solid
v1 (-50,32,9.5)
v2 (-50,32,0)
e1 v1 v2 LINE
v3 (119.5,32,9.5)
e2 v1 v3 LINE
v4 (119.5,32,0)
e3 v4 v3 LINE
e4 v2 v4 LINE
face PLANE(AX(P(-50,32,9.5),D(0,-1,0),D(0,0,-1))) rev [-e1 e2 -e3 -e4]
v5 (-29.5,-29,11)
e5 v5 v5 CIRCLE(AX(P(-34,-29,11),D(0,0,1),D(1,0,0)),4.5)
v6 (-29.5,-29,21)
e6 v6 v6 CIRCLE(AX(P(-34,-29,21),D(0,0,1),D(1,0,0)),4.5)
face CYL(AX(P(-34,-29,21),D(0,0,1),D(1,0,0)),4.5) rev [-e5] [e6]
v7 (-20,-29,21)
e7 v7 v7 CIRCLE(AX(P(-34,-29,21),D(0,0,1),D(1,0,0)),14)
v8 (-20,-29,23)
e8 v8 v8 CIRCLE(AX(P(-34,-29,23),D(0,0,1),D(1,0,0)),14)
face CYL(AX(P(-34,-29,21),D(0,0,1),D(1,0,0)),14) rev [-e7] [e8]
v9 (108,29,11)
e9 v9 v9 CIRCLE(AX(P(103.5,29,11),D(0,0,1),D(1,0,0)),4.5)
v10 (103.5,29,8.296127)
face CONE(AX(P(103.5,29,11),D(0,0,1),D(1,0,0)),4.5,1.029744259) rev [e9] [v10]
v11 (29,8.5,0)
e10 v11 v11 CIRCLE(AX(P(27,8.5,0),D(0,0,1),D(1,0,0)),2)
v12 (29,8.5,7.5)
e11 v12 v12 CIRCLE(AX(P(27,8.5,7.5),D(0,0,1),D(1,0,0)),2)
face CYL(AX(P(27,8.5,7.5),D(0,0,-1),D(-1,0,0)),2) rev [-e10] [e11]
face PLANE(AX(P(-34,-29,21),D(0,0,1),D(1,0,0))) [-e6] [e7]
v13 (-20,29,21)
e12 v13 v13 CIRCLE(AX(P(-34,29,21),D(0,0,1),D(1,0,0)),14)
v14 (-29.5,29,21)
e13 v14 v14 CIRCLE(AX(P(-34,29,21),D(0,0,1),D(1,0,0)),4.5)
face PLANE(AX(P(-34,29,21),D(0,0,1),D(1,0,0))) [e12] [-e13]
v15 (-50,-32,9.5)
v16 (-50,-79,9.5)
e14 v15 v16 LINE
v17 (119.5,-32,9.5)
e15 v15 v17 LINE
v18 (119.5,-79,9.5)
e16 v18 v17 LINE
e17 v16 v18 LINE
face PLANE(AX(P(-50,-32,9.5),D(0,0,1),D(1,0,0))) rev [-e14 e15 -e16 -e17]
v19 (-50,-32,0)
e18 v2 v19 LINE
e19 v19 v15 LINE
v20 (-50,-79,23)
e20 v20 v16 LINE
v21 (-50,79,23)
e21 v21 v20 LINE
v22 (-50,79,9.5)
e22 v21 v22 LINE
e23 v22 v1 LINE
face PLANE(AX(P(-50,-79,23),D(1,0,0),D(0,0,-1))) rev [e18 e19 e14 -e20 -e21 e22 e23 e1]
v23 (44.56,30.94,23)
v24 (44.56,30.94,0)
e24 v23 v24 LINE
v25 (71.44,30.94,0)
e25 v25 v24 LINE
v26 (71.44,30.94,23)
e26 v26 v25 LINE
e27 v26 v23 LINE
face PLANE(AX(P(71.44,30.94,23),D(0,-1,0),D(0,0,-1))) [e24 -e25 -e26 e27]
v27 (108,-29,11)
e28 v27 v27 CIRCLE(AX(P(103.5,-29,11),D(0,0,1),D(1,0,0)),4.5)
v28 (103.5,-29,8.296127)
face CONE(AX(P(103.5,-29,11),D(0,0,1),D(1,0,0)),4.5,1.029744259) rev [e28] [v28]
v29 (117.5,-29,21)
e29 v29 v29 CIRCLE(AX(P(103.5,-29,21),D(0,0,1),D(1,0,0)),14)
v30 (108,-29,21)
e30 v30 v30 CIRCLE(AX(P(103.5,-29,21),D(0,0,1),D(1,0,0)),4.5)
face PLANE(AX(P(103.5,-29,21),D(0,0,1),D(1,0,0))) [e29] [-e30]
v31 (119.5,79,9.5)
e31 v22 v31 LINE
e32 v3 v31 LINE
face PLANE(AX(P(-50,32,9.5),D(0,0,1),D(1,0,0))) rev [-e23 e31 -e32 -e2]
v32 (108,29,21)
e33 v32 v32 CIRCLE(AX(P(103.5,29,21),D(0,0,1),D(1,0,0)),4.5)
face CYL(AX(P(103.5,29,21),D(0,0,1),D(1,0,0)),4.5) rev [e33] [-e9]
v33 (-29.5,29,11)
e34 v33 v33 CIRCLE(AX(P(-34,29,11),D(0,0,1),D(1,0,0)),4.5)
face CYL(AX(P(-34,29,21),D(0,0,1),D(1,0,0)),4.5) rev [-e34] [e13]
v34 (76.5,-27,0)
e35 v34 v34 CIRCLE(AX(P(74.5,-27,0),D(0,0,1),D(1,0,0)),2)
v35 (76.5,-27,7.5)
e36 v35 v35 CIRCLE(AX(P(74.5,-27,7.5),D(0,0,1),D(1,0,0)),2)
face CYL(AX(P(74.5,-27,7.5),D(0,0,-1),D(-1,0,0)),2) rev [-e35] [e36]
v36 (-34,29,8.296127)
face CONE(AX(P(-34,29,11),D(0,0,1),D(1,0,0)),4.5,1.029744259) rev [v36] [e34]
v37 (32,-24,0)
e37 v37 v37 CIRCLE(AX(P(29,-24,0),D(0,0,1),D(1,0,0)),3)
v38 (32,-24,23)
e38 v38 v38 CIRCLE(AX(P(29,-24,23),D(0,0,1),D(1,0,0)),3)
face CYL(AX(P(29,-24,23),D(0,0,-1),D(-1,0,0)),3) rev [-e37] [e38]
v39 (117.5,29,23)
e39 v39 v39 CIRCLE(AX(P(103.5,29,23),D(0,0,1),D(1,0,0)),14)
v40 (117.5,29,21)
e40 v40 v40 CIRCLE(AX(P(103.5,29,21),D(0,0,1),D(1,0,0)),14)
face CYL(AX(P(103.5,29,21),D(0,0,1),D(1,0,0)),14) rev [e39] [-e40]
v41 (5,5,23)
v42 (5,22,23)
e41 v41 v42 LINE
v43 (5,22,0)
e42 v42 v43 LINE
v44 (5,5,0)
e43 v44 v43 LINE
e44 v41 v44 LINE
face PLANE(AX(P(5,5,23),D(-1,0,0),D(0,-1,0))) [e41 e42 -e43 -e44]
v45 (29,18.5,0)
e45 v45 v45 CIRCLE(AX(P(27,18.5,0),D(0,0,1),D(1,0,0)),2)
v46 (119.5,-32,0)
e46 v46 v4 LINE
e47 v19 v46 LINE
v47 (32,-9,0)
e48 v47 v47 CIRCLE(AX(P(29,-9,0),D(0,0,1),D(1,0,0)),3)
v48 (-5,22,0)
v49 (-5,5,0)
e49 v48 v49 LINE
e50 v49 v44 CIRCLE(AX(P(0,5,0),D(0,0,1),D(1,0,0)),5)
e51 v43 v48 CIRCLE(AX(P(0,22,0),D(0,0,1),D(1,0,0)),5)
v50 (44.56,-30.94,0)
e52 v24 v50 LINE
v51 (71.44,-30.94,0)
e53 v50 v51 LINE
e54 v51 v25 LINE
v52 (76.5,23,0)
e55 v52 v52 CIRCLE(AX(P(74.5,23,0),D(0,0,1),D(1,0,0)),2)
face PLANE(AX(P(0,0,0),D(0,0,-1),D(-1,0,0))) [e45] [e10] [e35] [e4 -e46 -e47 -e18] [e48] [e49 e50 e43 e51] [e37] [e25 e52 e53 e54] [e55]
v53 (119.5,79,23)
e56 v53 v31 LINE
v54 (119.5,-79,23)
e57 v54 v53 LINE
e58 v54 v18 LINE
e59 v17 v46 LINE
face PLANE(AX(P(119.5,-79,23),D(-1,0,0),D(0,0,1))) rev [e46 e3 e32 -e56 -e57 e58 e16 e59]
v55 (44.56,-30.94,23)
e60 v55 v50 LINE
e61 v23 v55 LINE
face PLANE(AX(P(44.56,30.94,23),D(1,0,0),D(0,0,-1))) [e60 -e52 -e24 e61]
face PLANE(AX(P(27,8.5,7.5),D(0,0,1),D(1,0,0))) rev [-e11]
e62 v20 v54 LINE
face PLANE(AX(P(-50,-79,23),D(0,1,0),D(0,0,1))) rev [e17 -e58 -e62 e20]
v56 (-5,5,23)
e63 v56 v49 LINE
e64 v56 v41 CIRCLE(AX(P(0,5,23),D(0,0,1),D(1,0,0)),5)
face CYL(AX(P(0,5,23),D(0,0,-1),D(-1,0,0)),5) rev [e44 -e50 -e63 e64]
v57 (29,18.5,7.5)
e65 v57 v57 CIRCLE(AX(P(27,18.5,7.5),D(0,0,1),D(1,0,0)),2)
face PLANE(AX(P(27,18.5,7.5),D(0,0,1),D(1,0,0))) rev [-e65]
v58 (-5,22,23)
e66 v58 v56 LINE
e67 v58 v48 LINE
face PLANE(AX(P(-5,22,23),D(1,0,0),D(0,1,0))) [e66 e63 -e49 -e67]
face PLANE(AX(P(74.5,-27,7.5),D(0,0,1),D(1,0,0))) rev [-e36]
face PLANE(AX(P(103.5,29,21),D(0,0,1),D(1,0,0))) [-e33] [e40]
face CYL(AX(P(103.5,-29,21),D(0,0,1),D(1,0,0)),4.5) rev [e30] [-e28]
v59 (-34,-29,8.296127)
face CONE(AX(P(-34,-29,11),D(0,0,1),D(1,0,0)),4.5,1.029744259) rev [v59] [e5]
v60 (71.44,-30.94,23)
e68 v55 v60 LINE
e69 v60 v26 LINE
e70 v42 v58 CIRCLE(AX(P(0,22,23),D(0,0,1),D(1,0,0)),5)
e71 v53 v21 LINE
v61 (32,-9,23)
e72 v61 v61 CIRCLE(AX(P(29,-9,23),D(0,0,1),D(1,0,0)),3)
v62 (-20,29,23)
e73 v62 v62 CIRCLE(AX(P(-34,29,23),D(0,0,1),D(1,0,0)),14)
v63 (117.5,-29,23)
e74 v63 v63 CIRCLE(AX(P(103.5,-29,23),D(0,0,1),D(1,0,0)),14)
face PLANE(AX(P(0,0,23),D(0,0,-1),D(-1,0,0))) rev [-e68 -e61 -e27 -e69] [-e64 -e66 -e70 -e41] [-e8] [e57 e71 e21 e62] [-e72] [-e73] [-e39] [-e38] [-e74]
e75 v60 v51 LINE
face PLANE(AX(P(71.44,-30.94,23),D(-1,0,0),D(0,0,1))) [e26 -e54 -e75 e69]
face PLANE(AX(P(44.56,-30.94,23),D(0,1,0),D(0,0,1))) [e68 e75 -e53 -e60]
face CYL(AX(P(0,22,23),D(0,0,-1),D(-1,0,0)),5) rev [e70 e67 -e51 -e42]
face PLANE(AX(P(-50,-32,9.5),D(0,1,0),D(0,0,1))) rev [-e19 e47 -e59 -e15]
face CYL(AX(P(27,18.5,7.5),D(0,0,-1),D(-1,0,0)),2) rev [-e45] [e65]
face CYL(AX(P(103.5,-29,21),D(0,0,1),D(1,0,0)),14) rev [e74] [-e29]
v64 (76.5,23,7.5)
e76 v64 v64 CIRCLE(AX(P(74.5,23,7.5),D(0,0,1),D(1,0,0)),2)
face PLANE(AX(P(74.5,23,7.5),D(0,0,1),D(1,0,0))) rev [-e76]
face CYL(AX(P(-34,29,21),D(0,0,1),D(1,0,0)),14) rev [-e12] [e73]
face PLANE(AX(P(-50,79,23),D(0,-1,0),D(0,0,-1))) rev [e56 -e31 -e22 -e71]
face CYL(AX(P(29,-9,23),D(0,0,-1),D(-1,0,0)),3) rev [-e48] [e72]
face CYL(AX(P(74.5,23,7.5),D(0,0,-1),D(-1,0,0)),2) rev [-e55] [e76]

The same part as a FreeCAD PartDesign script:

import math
import FreeCAD as App
import Part
import Sketcher
from FreeCAD import Vector

doc = App.newDocument("Part")
body = doc.addObject("PartDesign::Body", "Body")

# Sketch on XY plane
sketch1 = body.newObject("Sketcher::SketchObject", "Sketch")
sketch1.AttachmentSupport = (doc.getObject("XY_Plane"), [""])
sketch1.MapMode = "FlatFace"
sketch1.addGeometry(Part.LineSegment(Vector(-50, 79, 0), Vector(-50, -79, 0)), False)
sketch1.addGeometry(Part.LineSegment(Vector(-50, -79, 0), Vector(119.5, -79, 0)), False)
sketch1.addGeometry(Part.LineSegment(Vector(119.5, -79, 0), Vector(119.5, 79, 0)), False)
sketch1.addGeometry(Part.LineSegment(Vector(119.5, 79, 0), Vector(-50, 79, 0)), False)
sketch1.addGeometry(Part.Circle(Vector(29, -24, 0), Vector(0, 0, 1), 3), False)
sketch1.addGeometry(Part.Circle(Vector(29, -9, 0), Vector(0, 0, 1), 3), False)
sketch1.addGeometry(Part.LineSegment(Vector(71.4, -30.9, 0), Vector(44.6, -30.9, 0)), False)
sketch1.addGeometry(Part.LineSegment(Vector(44.6, -30.9, 0), Vector(44.6, 30.9, 0)), False)
sketch1.addGeometry(Part.LineSegment(Vector(44.6, 30.9, 0), Vector(71.4, 30.9, 0)), False)
sketch1.addGeometry(Part.LineSegment(Vector(71.4, 30.9, 0), Vector(71.4, -30.9, 0)), False)
sketch1.addGeometry(Part.LineSegment(Vector(-5, 5, 0), Vector(-5, 22, 0)), False)
sketch1.addGeometry(Part.ArcOfCircle(Part.Circle(Vector(0, 22, 0), Vector(0, 0, 1), 5), math.radians(0), math.radians(180)), False)
sketch1.addGeometry(Part.LineSegment(Vector(5, 22, 0), Vector(5, 5, 0)), False)
sketch1.addGeometry(Part.ArcOfCircle(Part.Circle(Vector(0, 5, 0), Vector(0, 0, 1), 5), math.radians(180), math.radians(360)), False)
sketch1.addConstraint(Sketcher.Constraint("Coincident", 0, 2, 1, 1))
sketch1.addConstraint(Sketcher.Constraint("Coincident", 1, 2, 2, 1))
sketch1.addConstraint(Sketcher.Constraint("Coincident", 2, 2, 3, 1))
sketch1.addConstraint(Sketcher.Constraint("Coincident", 3, 2, 0, 1))
sketch1.addConstraint(Sketcher.Constraint("Coincident", 6, 2, 7, 1))
sketch1.addConstraint(Sketcher.Constraint("Coincident", 7, 2, 8, 1))
sketch1.addConstraint(Sketcher.Constraint("Coincident", 8, 2, 9, 1))
sketch1.addConstraint(Sketcher.Constraint("Coincident", 9, 2, 6, 1))
sketch1.addConstraint(Sketcher.Constraint("Tangent", 10, 2, 11, 2))
sketch1.addConstraint(Sketcher.Constraint("Tangent", 11, 1, 12, 1))
sketch1.addConstraint(Sketcher.Constraint("Tangent", 12, 2, 13, 2))
sketch1.addConstraint(Sketcher.Constraint("Tangent", 13, 1, 10, 1))
sketch1.addConstraint(Sketcher.Constraint("Vertical", 0))
sketch1.addConstraint(Sketcher.Constraint("Horizontal", 1))
sketch1.addConstraint(Sketcher.Constraint("Vertical", 2))
sketch1.addConstraint(Sketcher.Constraint("Horizontal", 3))
sketch1.addConstraint(Sketcher.Constraint("Horizontal", 6))
sketch1.addConstraint(Sketcher.Constraint("Vertical", 7))
sketch1.addConstraint(Sketcher.Constraint("Horizontal", 8))
sketch1.addConstraint(Sketcher.Constraint("Vertical", 9))
sketch1.addConstraint(Sketcher.Constraint("Vertical", 10))
sketch1.addConstraint(Sketcher.Constraint("Vertical", 12))
sketch1.addConstraint(Sketcher.Constraint("Equal", 4, 5))
sketch1.addConstraint(Sketcher.Constraint("PointOnObject", 11, 3, -2))
sketch1.addConstraint(Sketcher.Constraint("Vertical", 4, 3, 5, 3))
sketch1.addConstraint(Sketcher.Constraint("Diameter", 4, 6.0))
sketch1.addConstraint(Sketcher.Constraint("Radius", 11, 5.0))
sketch1.addConstraint(Sketcher.Constraint("DistanceY", 0, 2, 0, 1, 158.0))
sketch1.addConstraint(Sketcher.Constraint("DistanceY", 10, 1, 10, 2, 17.0))
sketch1.addConstraint(Sketcher.Constraint("DistanceX", 1, 1, 1, 2, 169.5))
sketch1.addConstraint(Sketcher.Constraint("DistanceX", -1, 1, 4, 3, 29.0))
sketch1.addConstraint(Sketcher.Constraint("DistanceY", 4, 3, -1, 1, 24.0))
sketch1.addConstraint(Sketcher.Constraint("DistanceY", 5, 3, -1, 1, 9.0))
sketch1.addConstraint(Sketcher.Constraint("DistanceY", -1, 1, 11, 3, 22.0))
sketch1.addConstraint(Sketcher.Constraint("DistanceX", 0, 2, -1, 1, 50.0))
sketch1.addConstraint(Sketcher.Constraint("DistanceY", 0, 2, -1, 1, 79.0))
sketch1.addConstraint(Sketcher.Constraint("DistanceX", 6, 2, 6, 1, 26.88))
sketch1.addConstraint(Sketcher.Constraint("DistanceY", 7, 1, 7, 2, 61.88))
sketch1.addConstraint(Sketcher.Constraint("DistanceX", -1, 1, 6, 2, 44.56))
sketch1.addConstraint(Sketcher.Constraint("DistanceY", 6, 2, -1, 1, 30.94))
pad1 = body.newObject("PartDesign::Pad", "Pad")
pad1.Profile = sketch1
pad1.Length = 23

# Sketch on YZ plane
sketch2 = body.newObject("Sketcher::SketchObject", "Sketch001")
sketch2.AttachmentSupport = (doc.getObject("YZ_Plane"), [""])
sketch2.MapMode = "FlatFace"
sketch2.AttachmentOffset = App.Placement(Vector(0, 0, 119.5), App.Rotation())
sketch2.addGeometry(Part.LineSegment(Vector(79, 10, 0), Vector(32, 10, 0)), False)
sketch2.addGeometry(Part.LineSegment(Vector(32, 10, 0), Vector(32, 0, 0)), False)
sketch2.addGeometry(Part.LineSegment(Vector(32, 0, 0), Vector(79, 0, 0)), False)
sketch2.addGeometry(Part.LineSegment(Vector(79, 0, 0), Vector(79, 10, 0)), False)
sketch2.addGeometry(Part.LineSegment(Vector(-32, 10, 0), Vector(-79, 10, 0)), False)
sketch2.addGeometry(Part.LineSegment(Vector(-79, 10, 0), Vector(-79, 0, 0)), False)
sketch2.addGeometry(Part.LineSegment(Vector(-79, 0, 0), Vector(-32, 0, 0)), False)
sketch2.addGeometry(Part.LineSegment(Vector(-32, 0, 0), Vector(-32, 10, 0)), False)
sketch2.addConstraint(Sketcher.Constraint("Coincident", 0, 2, 1, 1))
sketch2.addConstraint(Sketcher.Constraint("Coincident", 1, 2, 2, 1))
sketch2.addConstraint(Sketcher.Constraint("Coincident", 2, 2, 3, 1))
sketch2.addConstraint(Sketcher.Constraint("Coincident", 3, 2, 0, 1))
sketch2.addConstraint(Sketcher.Constraint("Coincident", 4, 2, 5, 1))
sketch2.addConstraint(Sketcher.Constraint("Coincident", 5, 2, 6, 1))
sketch2.addConstraint(Sketcher.Constraint("Coincident", 6, 2, 7, 1))
sketch2.addConstraint(Sketcher.Constraint("Coincident", 7, 2, 4, 1))
sketch2.addConstraint(Sketcher.Constraint("Horizontal", 0))
sketch2.addConstraint(Sketcher.Constraint("Vertical", 1))
sketch2.addConstraint(Sketcher.Constraint("Horizontal", 2))
sketch2.addConstraint(Sketcher.Constraint("Vertical", 3))
sketch2.addConstraint(Sketcher.Constraint("Horizontal", 4))
sketch2.addConstraint(Sketcher.Constraint("Vertical", 5))
sketch2.addConstraint(Sketcher.Constraint("Horizontal", 6))
sketch2.addConstraint(Sketcher.Constraint("Vertical", 7))
sketch2.addConstraint(Sketcher.Constraint("Symmetric", 2, 2, 5, 2, -1, 1))
sketch2.addConstraint(Sketcher.Constraint("Symmetric", 1, 2, 6, 2, -2))
sketch2.addConstraint(Sketcher.Constraint("Horizontal", 3, 2, 4, 2))
sketch2.addConstraint(Sketcher.Constraint("DistanceX", 0, 2, 0, 1, 47.0))
sketch2.addConstraint(Sketcher.Constraint("DistanceY", 1, 2, 1, 1, 9.5))
sketch2.addConstraint(Sketcher.Constraint("DistanceX", -1, 1, 0, 2, 32.0))
pocket1 = body.newObject("PartDesign::Pocket", "Pocket")
pocket1.Profile = sketch2
pocket1.Type = "ThroughAll"
pocket1.Midplane = True

# Sketch on XY plane
sketch3 = body.newObject("Sketcher::SketchObject", "Sketch002")
sketch3.AttachmentSupport = (doc.getObject("XY_Plane"), [""])
sketch3.MapMode = "FlatFace"
sketch3.addGeometry(Part.Circle(Vector(74.5, -27, 0), Vector(0, 0, 1), 2), False)
sketch3.addGeometry(Part.Circle(Vector(74.5, 23, 0), Vector(0, 0, 1), 2), False)
sketch3.addGeometry(Part.Circle(Vector(27, 18.5, 0), Vector(0, 0, 1), 2), False)
sketch3.addGeometry(Part.Circle(Vector(27, 8.5, 0), Vector(0, 0, 1), 2), False)
sketch3.addConstraint(Sketcher.Constraint("Equal", 0, 1))
sketch3.addConstraint(Sketcher.Constraint("Equal", 1, 2))
sketch3.addConstraint(Sketcher.Constraint("Equal", 2, 3))
sketch3.addConstraint(Sketcher.Constraint("Vertical", 0, 3, 1, 3))
sketch3.addConstraint(Sketcher.Constraint("Vertical", 2, 3, 3, 3))
sketch3.addConstraint(Sketcher.Constraint("Diameter", 0, 4.0))
sketch3.addConstraint(Sketcher.Constraint("DistanceY", 0, 3, -1, 1, 27.0))
sketch3.addConstraint(Sketcher.Constraint("DistanceY", -1, 1, 1, 3, 23.0))
sketch3.addConstraint(Sketcher.Constraint("DistanceX", -1, 1, 2, 3, 27.0))
sketch3.addConstraint(Sketcher.Constraint("DistanceY", 3, 3, 2, 3, 10.0))
sketch3.addConstraint(Sketcher.Constraint("DistanceX", -1, 1, 0, 3, 74.5))
sketch3.addConstraint(Sketcher.Constraint("DistanceY", -1, 1, 2, 3, 18.5))
pocket2 = body.newObject("PartDesign::Pocket", "Pocket001")
pocket2.Profile = sketch3
pocket2.Length = 7.5
pocket2.Reversed = True

# Sketch on XY plane
sketch4 = body.newObject("Sketcher::SketchObject", "Sketch003")
sketch4.AttachmentSupport = (doc.getObject("XY_Plane"), [""])
sketch4.MapMode = "FlatFace"
sketch4.AttachmentOffset = App.Placement(Vector(0, 0, 23), App.Rotation())
sketch4.addGeometry(Part.Circle(Vector(104, 29, 0), Vector(0, 0, 1), 14), False)
sketch4.addGeometry(Part.Circle(Vector(104, -29, 0), Vector(0, 0, 1), 14), False)
sketch4.addGeometry(Part.Circle(Vector(-34, 29, 0), Vector(0, 0, 1), 14), False)
sketch4.addGeometry(Part.Circle(Vector(-34, -29, 0), Vector(0, 0, 1), 14), False)
sketch4.addConstraint(Sketcher.Constraint("Equal", 0, 1))
sketch4.addConstraint(Sketcher.Constraint("Equal", 1, 2))
sketch4.addConstraint(Sketcher.Constraint("Equal", 2, 3))
sketch4.addConstraint(Sketcher.Constraint("Symmetric", 0, 3, 1, 3, -1))
sketch4.addConstraint(Sketcher.Constraint("Symmetric", 2, 3, 3, 3, -1))
sketch4.addConstraint(Sketcher.Constraint("Horizontal", 0, 3, 2, 3))
sketch4.addConstraint(Sketcher.Constraint("Diameter", 0, 28.0))
sketch4.addConstraint(Sketcher.Constraint("DistanceY", -1, 1, 0, 3, 29.0))
sketch4.addConstraint(Sketcher.Constraint("DistanceX", 2, 3, -1, 1, 34.0))
sketch4.addConstraint(Sketcher.Constraint("DistanceX", -1, 1, 0, 3, 103.5))
pocket3 = body.newObject("PartDesign::Pocket", "Pocket002")
pocket3.Profile = sketch4
pocket3.Length = 2

# Sketch on XY plane
sketch5 = body.newObject("Sketcher::SketchObject", "Sketch004")
sketch5.AttachmentSupport = (doc.getObject("XY_Plane"), [""])
sketch5.MapMode = "FlatFace"
sketch5.AttachmentOffset = App.Placement(Vector(0, 0, 21), App.Rotation())
sketch5.addGeometry(Part.Circle(Vector(-34, 29, 0), Vector(0, 0, 1), 4.5), False)
sketch5.addGeometry(Part.Circle(Vector(-34, -29, 0), Vector(0, 0, 1), 4.5), False)
sketch5.addGeometry(Part.Circle(Vector(103.5, 29, 0), Vector(0, 0, 1), 4.5), False)
sketch5.addGeometry(Part.Circle(Vector(103.5, -29, 0), Vector(0, 0, 1), 4.5), False)
sketch5.addConstraint(Sketcher.Constraint("Equal", 0, 1))
sketch5.addConstraint(Sketcher.Constraint("Equal", 1, 2))
sketch5.addConstraint(Sketcher.Constraint("Equal", 2, 3))
sketch5.addConstraint(Sketcher.Constraint("Symmetric", 0, 3, 1, 3, -1))
sketch5.addConstraint(Sketcher.Constraint("Symmetric", 2, 3, 3, 3, -1))
sketch5.addConstraint(Sketcher.Constraint("Horizontal", 0, 3, 2, 3))
sketch5.addConstraint(Sketcher.Constraint("Diameter", 0, 9.0))
sketch5.addConstraint(Sketcher.Constraint("DistanceX", 0, 3, -1, 1, 34.0))
sketch5.addConstraint(Sketcher.Constraint("DistanceY", -1, 1, 0, 3, 29.0))
sketch5.addConstraint(Sketcher.Constraint("DistanceX", -1, 1, 2, 3, 103.5))
doc.recompute()
hole = body.newObject("PartDesign::Hole", "Hole")
hole.Profile = sketch5
hole.ThreadType = "None"
hole.Diameter = 9
hole.DepthType = "Dimension"
hole.Depth = 10
hole.DrillPoint = "Angled"
hole.DrillPointAngle = 118

doc.recompute()
